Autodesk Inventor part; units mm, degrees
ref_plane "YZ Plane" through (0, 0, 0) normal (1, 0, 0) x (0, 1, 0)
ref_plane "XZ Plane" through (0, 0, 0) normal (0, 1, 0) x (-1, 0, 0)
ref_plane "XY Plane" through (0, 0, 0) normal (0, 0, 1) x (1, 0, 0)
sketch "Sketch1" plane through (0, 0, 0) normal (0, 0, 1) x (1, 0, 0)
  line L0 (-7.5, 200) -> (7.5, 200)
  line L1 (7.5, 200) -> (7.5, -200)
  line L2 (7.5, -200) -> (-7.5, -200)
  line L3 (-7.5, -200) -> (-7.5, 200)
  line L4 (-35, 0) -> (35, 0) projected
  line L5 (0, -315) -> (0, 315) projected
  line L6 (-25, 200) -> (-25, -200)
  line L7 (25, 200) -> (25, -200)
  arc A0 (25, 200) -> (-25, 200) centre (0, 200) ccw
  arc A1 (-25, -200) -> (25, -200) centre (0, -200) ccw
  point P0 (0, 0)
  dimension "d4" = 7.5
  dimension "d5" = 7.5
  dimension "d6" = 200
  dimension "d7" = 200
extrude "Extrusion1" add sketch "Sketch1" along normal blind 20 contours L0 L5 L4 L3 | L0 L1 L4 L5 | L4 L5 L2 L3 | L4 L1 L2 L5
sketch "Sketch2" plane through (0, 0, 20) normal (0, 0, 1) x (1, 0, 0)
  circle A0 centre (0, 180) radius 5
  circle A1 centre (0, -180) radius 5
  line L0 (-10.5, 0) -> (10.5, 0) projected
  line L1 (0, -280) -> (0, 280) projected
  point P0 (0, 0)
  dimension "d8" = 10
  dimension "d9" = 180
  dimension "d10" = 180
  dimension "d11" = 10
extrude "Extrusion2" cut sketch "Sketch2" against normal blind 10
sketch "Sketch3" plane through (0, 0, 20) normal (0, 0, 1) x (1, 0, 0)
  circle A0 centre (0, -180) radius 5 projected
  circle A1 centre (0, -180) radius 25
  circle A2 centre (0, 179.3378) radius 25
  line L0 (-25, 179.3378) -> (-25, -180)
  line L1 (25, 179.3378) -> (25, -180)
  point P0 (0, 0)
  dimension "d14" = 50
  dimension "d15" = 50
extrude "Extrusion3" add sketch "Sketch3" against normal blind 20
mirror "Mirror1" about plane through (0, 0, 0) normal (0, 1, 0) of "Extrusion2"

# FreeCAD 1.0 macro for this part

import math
import FreeCAD as App
import Part
import Sketcher
from FreeCAD import Vector
Q = App.Units.Quantity


def add_polygon(sketch, points):
    """Adds a closed chain of lines whose ends are joined by coincident constraints."""
    first, n = sketch.GeometryCount, len(points)
    for a, b in zip(points, points[1:] + points[:1]):
        sketch.addGeometry(Part.LineSegment(App.Vector(*a, 0), App.Vector(*b, 0)), False)
    for i in range(n):
        sketch.addConstraint(Sketcher.Constraint("Coincident", first + i, 2, first + (i + 1) % n, 1))

doc = App.newDocument("Part")
body = doc.addObject("PartDesign::Body", "Body")

# Sketch on XY plane
sketch1 = body.newObject("Sketcher::SketchObject", "Sketch")
sketch1.AttachmentSupport = (doc.getObject("XY_Plane"), [""])
sketch1.MapMode = "FlatFace"
add_polygon(sketch1, [(-7.5, 200), (-7.5, -200), (7.5, -200), (7.5, 200)])  # lines 0-3
sketch1.addConstraint([
    Sketcher.Constraint("Vertical", 0),
    Sketcher.Constraint("Horizontal", 1),
    Sketcher.Constraint("Vertical", 2),
    Sketcher.Constraint("Horizontal", 3),
    Sketcher.Constraint("Symmetric", 0, 2, 2, 2, -1, 1),
    Sketcher.Constraint("DistanceY", 0, 2, -1, 1, Q("200 mm")),
    Sketcher.Constraint("DistanceX", 0, 2, -1, 1, Q("7.5 mm")),
])
pad1 = body.newObject("PartDesign::Pad", "Pad")
pad1.Profile = sketch1
pad1.Length = 20

# Sketch on XY plane
sketch2 = body.newObject("Sketcher::SketchObject", "Sketch001")
sketch2.AttachmentSupport = (doc.getObject("XY_Plane"), [""])
sketch2.MapMode = "FlatFace"
sketch2.AttachmentOffset = App.Placement(Vector(0, 0, 20), App.Rotation())
sketch2.addGeometry([
    Part.Circle(Vector(0, 180, 0), Vector(0, 0, 1), 5),
    Part.Circle(Vector(0, -180, 0), Vector(0, 0, 1), 5),
], False)
sketch2.addConstraint([
    Sketcher.Constraint("Equal", 0, 1),
    Sketcher.Constraint("Symmetric", 0, 3, 1, 3, -1, 1),
    Sketcher.Constraint("PointOnObject", 0, 3, -2),
    Sketcher.Constraint("Diameter", 0, Q("10 mm")),
    Sketcher.Constraint("DistanceY", -1, 1, 0, 3, Q("180 mm")),
])
pocket1 = body.newObject("PartDesign::Pocket", "Pocket")
pocket1.Profile = sketch2
pocket1.Length = 10

# Sketch on XY plane
sketch3 = body.newObject("Sketcher::SketchObject", "Sketch002")
sketch3.AttachmentSupport = (doc.getObject("XY_Plane"), [""])
sketch3.MapMode = "FlatFace"
sketch3.AttachmentOffset = App.Placement(Vector(0, 0, 20), App.Rotation())
sketch3.addGeometry([
    Part.ArcOfCircle(Part.Circle(Vector(0, -180, 0), Vector(0, 0, 1), 25), math.radians(180), math.radians(360)),  # 0
    Part.LineSegment(Vector(25, -180, 0), Vector(25, 179.3378, 0)),  # 1
    Part.ArcOfCircle(Part.Circle(Vector(0, 179.3378, 0), Vector(0, 0, 1), 25), math.radians(0), math.radians(180)),  # 2
    Part.LineSegment(Vector(-25, 179.3378, 0), Vector(-25, -180, 0)),  # 3
    Part.Circle(Vector(0, -180, 0), Vector(0, 0, 1), 5),  # 4
], False)
sketch3.addConstraint([
    Sketcher.Constraint("Tangent", 0, 2, 1, 1),
    Sketcher.Constraint("Tangent", 1, 2, 2, 1),
    Sketcher.Constraint("Tangent", 2, 2, 3, 1),
    Sketcher.Constraint("Tangent", 3, 2, 0, 1),
    Sketcher.Constraint("Vertical", 1),
    Sketcher.Constraint("Vertical", 3),
    Sketcher.Constraint("Coincident", 4, 3, 0, 3),
    Sketcher.Constraint("PointOnObject", 0, 3, -2),
    Sketcher.Constraint("Radius", 0, Q("25 mm")),
    Sketcher.Constraint("Diameter", 4, Q("10 mm")),
    Sketcher.Constraint("DistanceY", 0, 3, -1, 1, Q("180 mm")),
    Sketcher.Constraint("DistanceY", 1, 1, 1, 2, Q("359.3378 mm")),
])
pad2 = body.newObject("PartDesign::Pad", "Pad001")
pad2.Profile = sketch3
pad2.Length = 20
pad2.Reversed = True
doc.recompute()

mirrored = body.newObject("PartDesign::Mirrored", "Mirrored")
mirrored.Originals = [pocket1]
mirrored.MirrorPlane = (doc.getObject("XZ_Plane"), [""])
body.Tip = mirrored

doc.recompute()
